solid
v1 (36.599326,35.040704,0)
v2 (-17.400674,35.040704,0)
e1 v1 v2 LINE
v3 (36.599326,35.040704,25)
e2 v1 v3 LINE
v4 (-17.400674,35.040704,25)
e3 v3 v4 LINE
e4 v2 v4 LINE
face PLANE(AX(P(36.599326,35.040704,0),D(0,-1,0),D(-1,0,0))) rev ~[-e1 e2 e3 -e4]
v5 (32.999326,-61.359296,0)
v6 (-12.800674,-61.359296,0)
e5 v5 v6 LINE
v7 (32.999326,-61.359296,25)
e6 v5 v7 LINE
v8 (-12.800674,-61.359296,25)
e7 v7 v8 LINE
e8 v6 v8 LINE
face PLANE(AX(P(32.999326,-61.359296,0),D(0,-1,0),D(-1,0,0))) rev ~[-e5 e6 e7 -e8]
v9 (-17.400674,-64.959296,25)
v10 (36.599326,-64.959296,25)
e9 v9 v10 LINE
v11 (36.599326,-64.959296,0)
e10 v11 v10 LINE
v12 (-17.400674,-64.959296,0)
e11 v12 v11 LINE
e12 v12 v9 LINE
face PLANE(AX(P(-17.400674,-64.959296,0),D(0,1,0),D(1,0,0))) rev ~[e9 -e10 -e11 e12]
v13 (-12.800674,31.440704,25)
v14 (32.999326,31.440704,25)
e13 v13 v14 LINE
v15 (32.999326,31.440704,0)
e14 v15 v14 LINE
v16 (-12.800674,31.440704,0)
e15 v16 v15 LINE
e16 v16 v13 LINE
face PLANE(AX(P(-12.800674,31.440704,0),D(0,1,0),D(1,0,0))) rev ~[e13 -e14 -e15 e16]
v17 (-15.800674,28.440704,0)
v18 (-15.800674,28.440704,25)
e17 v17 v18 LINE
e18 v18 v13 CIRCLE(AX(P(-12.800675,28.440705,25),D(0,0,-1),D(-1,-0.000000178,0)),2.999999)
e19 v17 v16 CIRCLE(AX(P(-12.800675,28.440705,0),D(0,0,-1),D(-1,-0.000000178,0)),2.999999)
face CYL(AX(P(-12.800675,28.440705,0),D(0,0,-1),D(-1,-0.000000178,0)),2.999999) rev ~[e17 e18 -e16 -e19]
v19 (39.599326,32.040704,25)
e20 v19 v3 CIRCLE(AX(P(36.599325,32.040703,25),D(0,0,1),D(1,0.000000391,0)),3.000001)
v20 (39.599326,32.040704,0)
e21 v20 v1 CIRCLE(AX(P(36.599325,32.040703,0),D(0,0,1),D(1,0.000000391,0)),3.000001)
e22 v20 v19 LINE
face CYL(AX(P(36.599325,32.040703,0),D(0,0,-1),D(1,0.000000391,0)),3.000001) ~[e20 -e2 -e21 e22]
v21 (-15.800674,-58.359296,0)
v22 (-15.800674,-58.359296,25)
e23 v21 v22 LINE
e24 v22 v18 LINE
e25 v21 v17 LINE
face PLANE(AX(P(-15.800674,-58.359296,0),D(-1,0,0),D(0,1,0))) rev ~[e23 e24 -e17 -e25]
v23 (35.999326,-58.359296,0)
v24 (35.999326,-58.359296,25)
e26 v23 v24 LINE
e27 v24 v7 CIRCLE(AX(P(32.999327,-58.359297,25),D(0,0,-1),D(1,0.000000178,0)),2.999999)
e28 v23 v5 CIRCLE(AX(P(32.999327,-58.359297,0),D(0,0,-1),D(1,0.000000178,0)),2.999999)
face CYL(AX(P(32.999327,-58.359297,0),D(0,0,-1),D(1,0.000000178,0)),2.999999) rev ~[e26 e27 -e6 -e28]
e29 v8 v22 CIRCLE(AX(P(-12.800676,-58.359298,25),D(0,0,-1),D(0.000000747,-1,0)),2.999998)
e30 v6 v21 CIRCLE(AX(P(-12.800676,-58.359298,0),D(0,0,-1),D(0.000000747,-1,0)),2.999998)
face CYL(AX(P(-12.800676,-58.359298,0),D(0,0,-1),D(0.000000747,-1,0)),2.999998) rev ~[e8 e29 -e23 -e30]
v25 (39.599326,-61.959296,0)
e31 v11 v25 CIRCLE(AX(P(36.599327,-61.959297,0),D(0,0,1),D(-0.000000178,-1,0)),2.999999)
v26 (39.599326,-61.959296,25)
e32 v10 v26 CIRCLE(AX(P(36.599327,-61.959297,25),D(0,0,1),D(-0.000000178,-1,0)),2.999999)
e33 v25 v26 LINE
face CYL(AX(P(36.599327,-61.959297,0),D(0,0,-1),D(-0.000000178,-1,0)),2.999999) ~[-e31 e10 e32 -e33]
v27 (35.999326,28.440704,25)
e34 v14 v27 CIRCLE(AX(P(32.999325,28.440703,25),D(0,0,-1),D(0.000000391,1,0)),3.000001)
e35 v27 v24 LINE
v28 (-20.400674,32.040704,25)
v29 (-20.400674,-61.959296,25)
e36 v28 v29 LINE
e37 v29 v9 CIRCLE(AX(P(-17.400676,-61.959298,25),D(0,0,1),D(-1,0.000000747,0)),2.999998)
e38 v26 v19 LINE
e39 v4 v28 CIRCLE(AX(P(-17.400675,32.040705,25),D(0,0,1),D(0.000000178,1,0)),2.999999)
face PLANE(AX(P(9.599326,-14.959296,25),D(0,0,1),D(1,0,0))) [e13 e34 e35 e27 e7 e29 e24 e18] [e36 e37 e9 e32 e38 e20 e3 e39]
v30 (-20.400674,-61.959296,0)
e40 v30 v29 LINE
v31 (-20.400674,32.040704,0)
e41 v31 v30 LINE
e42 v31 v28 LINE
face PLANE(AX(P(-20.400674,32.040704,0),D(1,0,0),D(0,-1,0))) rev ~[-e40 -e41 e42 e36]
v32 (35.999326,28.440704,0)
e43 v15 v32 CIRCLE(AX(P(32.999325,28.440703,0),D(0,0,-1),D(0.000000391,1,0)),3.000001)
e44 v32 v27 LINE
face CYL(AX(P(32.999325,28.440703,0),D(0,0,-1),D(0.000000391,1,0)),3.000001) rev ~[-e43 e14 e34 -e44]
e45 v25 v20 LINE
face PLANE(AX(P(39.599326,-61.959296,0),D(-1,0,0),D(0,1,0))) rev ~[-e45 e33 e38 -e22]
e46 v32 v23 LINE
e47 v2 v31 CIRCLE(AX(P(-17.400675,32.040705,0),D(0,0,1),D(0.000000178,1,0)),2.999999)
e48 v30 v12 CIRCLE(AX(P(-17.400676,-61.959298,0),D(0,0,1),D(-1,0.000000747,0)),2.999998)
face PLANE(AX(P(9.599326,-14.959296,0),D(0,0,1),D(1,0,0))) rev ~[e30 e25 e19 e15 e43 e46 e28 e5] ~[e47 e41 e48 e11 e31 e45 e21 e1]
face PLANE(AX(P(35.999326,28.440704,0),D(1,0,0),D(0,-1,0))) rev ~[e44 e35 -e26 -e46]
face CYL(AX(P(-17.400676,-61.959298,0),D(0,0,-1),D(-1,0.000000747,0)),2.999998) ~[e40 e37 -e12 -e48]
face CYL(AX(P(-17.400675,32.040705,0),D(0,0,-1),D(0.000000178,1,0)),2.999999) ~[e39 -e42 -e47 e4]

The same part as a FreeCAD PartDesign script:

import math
import FreeCAD as App
import Part
import Sketcher
from FreeCAD import Vector

doc = App.newDocument("Part")
body = doc.addObject("PartDesign::Body", "Body")

sketch1 = doc.addObject("Sketcher::SketchObject", "Sketch")
body.addObject(sketch1)
sketch1.AttachmentSupport = (doc.XY_Plane, [""])
sketch1.MapMode = "FlatFace"
sketch1.addGeometry([
    Part.LineSegment(Vector(39.6, -62, 0), Vector(39.6, 32, 0)),
    Part.ArcOfCircle(Part.Circle(Vector(36.6, 32, 0), Vector(0, 0, 1), 3), math.radians(0), math.radians(90)),
    Part.LineSegment(Vector(36.6, 35, 0), Vector(-17.4, 35, 0)),
    Part.ArcOfCircle(Part.Circle(Vector(-17.4, 32, 0), Vector(0, 0, 1), 3), math.radians(90), math.radians(180)),
    Part.LineSegment(Vector(-20.4, 32, 0), Vector(-20.4, -62, 0)),
    Part.ArcOfCircle(Part.Circle(Vector(-17.4, -62, 0), Vector(0, 0, 1), 3), math.radians(180), math.radians(270)),
    Part.LineSegment(Vector(-17.4, -65, 0), Vector(36.6, -65, 0)),
    Part.ArcOfCircle(Part.Circle(Vector(36.6, -62, 0), Vector(0, 0, 1), 3), math.radians(-90), math.radians(0)),
    Part.ArcOfCircle(Part.Circle(Vector(33, -58.4, 0), Vector(0, 0, 1), 3), math.radians(-90), math.radians(0)),
    Part.LineSegment(Vector(33, -61.4, 0), Vector(-12.8, -61.4, 0)),
    Part.ArcOfCircle(Part.Circle(Vector(-12.8, -58.4, 0), Vector(0, 0, 1), 3), math.radians(180), math.radians(270)),
    Part.LineSegment(Vector(-15.8, -58.4, 0), Vector(-15.8, 28.4, 0)),
    Part.ArcOfCircle(Part.Circle(Vector(-12.8, 28.4, 0), Vector(0, 0, 1), 3), math.radians(90), math.radians(180)),
    Part.LineSegment(Vector(-12.8, 31.4, 0), Vector(33, 31.4, 0)),
    Part.ArcOfCircle(Part.Circle(Vector(33, 28.4, 0), Vector(0, 0, 1), 3), math.radians(0), math.radians(90)),
    Part.LineSegment(Vector(36, 28.4, 0), Vector(36, -58.4, 0)),
], False)
sketch1.addConstraint([
    Sketcher.Constraint("Tangent", 0, 2, 1, 1),
    Sketcher.Constraint("Tangent", 1, 2, 2, 1),
    Sketcher.Constraint("Tangent", 2, 2, 3, 1),
    Sketcher.Constraint("Tangent", 3, 2, 4, 1),
    Sketcher.Constraint("Tangent", 4, 2, 5, 1),
    Sketcher.Constraint("Tangent", 5, 2, 6, 1),
    Sketcher.Constraint("Tangent", 6, 2, 7, 1),
    Sketcher.Constraint("Tangent", 7, 2, 0, 1),
    Sketcher.Constraint("Tangent", 8, 1, 9, 1),
    Sketcher.Constraint("Tangent", 9, 2, 10, 2),
    Sketcher.Constraint("Tangent", 10, 1, 11, 1),
    Sketcher.Constraint("Tangent", 11, 2, 12, 2),
    Sketcher.Constraint("Tangent", 12, 1, 13, 1),
    Sketcher.Constraint("Tangent", 13, 2, 14, 2),
    Sketcher.Constraint("Tangent", 14, 1, 15, 1),
    Sketcher.Constraint("Tangent", 15, 2, 8, 2),
    Sketcher.Constraint("Vertical", 0),
    Sketcher.Constraint("Horizontal", 2),
    Sketcher.Constraint("Vertical", 4),
    Sketcher.Constraint("Horizontal", 6),
    Sketcher.Constraint("Horizontal", 9),
    Sketcher.Constraint("Vertical", 11),
    Sketcher.Constraint("Horizontal", 13),
    Sketcher.Constraint("Vertical", 15),
    Sketcher.Constraint("Equal", 1, 3),
    Sketcher.Constraint("Equal", 3, 5),
    Sketcher.Constraint("Equal", 5, 7),
    Sketcher.Constraint("Equal", 7, 8),
    Sketcher.Constraint("Equal", 8, 10),
    Sketcher.Constraint("Equal", 10, 12),
    Sketcher.Constraint("Equal", 12, 14),
    Sketcher.Constraint("Radius", 1, 3.000001),
    Sketcher.Constraint("DistanceX", 2, 2, 2, 1, 54.0),
    Sketcher.Constraint("DistanceY", 0, 1, 0, 2, 94.0),
    Sketcher.Constraint("DistanceX", 9, 2, 9, 1, 45.8),
    Sketcher.Constraint("DistanceY", 11, 1, 11, 2, 86.8),
    Sketcher.Constraint("DistanceX", 8, 3, 7, 3, 3.6),
    Sketcher.Constraint("DistanceY", 7, 3, 8, 3, 3.6),
    Sketcher.Constraint("DistanceY", 5, 3, -1, 1, 61.959298),
    Sketcher.Constraint("DistanceX", -1, 1, 1, 3, 36.599325),
])
pad1 = doc.addObject("PartDesign::Pad", "Pad")
body.addObject(pad1)
pad1.Profile = sketch1
pad1.Length = 25

doc.recompute()
